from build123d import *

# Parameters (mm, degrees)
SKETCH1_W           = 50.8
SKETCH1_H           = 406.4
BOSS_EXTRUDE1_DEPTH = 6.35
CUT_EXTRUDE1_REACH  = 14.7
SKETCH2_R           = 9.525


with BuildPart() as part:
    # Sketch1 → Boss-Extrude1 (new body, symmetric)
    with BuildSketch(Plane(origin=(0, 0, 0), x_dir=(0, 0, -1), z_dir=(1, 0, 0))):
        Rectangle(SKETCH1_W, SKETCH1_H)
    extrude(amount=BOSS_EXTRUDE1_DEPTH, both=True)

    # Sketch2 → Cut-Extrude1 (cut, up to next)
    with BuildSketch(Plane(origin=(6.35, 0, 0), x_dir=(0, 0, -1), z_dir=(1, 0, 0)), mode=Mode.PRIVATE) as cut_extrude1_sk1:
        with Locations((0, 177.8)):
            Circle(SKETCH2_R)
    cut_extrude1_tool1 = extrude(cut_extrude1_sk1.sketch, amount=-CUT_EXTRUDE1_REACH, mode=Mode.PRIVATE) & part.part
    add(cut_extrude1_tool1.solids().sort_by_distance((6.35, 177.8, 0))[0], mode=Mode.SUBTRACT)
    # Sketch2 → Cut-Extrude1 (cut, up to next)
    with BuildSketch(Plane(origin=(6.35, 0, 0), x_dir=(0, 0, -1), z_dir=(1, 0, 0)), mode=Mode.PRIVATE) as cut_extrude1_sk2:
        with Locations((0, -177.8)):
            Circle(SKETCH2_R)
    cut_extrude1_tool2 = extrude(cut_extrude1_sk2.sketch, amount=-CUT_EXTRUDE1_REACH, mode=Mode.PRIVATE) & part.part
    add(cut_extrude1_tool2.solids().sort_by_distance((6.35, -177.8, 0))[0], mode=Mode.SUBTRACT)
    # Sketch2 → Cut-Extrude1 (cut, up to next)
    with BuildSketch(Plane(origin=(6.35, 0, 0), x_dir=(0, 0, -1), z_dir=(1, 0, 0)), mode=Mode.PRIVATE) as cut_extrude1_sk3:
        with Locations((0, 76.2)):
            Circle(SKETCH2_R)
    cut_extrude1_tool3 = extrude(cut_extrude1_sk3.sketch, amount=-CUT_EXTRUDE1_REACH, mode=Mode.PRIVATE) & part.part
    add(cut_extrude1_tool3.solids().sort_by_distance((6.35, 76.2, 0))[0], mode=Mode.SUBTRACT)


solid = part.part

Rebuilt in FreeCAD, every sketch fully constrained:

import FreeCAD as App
import Part
import Sketcher
Q = App.Units.Quantity

doc = App.newDocument("Part")
body = doc.addObject("PartDesign::Body", "Body")

# Sketch on YZ plane
sketch1 = doc.addObject("Sketcher::SketchObject", "Sketch")
body.addObject(sketch1)
sketch1.AttachmentSupport = (doc.YZ_Plane, [""])
sketch1.MapMode = "FlatFace"
sketch1.addGeometry([
    Part.LineSegment(App.Vector(203, 25, 0), App.Vector(-203, 25, 0)),
    Part.LineSegment(App.Vector(-203, 25, 0), App.Vector(-203, -25, 0)),
    Part.LineSegment(App.Vector(-203, -25, 0), App.Vector(203, -25, 0)),
    Part.LineSegment(App.Vector(203, -25, 0), App.Vector(203, 25, 0)),
], False)
sketch1.addConstraint([
    Sketcher.Constraint("Coincident", 0, 2, 1, 1),
    Sketcher.Constraint("Coincident", 1, 2, 2, 1),
    Sketcher.Constraint("Coincident", 2, 2, 3, 1),
    Sketcher.Constraint("Coincident", 3, 2, 0, 1),
    Sketcher.Constraint("Horizontal", 0),
    Sketcher.Constraint("Vertical", 1),
    Sketcher.Constraint("Horizontal", 2),
    Sketcher.Constraint("Vertical", 3),
    Sketcher.Constraint("Symmetric", 0, 2, 2, 2, -1, 1),
    Sketcher.Constraint("DistanceX", 0, 2, 0, 1, Q("16 in")),
    Sketcher.Constraint("DistanceY", 1, 2, 1, 1, Q("2 in")),
])
pad1 = doc.addObject("PartDesign::Pad", "Pad")
body.addObject(pad1)
pad1.Profile = sketch1
pad1.Length = Q("0.5 in")
pad1.Midplane = True

# Sketch on YZ plane
sketch2 = doc.addObject("Sketcher::SketchObject", "Sketch001")
body.addObject(sketch2)
sketch2.AttachmentSupport = (doc.YZ_Plane, [""])
sketch2.MapMode = "FlatFace"
sketch2.AttachmentOffset = App.Placement(App.Vector(0, 0, 0.25 * 25.4), App.Rotation())
sketch2.addGeometry(Part.Circle(App.Vector(178, 0, 0), App.Vector(0, 0, 1), 10), False)
sketch2.addConstraint([
    Sketcher.Constraint("PointOnObject", 0, 3, -1),
    Sketcher.Constraint("Diameter", 0, Q("0.75 in")),
    Sketcher.Constraint("DistanceX", -1, 1, 0, 3, Q("7 in")),
])
pocket1 = doc.addObject("PartDesign::Pocket", "Pocket")
body.addObject(pocket1)
pocket1.Profile = sketch2
pocket1.Type = "UpToFirst"

# Sketch on YZ plane
sketch3 = doc.addObject("Sketcher::SketchObject", "Sketch002")
body.addObject(sketch3)
sketch3.AttachmentSupport = (doc.YZ_Plane, [""])
sketch3.MapMode = "FlatFace"
sketch3.AttachmentOffset = App.Placement(App.Vector(0, 0, 0.25 * 25.4), App.Rotation())
sketch3.addGeometry(Part.Circle(App.Vector(-178, 0, 0), App.Vector(0, 0, 1), 10), False)
sketch3.addConstraint([
    Sketcher.Constraint("PointOnObject", 0, 3, -1),
    Sketcher.Constraint("Diameter", 0, Q("0.75 in")),
    Sketcher.Constraint("DistanceX", 0, 3, -1, 1, Q("7 in")),
])
pocket2 = doc.addObject("PartDesign::Pocket", "Pocket001")
body.addObject(pocket2)
pocket2.Profile = sketch3
pocket2.Type = "UpToFirst"

# Sketch on YZ plane
sketch4 = doc.addObject("Sketcher::SketchObject", "Sketch003")
body.addObject(sketch4)
sketch4.AttachmentSupport = (doc.YZ_Plane, [""])
sketch4.MapMode = "FlatFace"
sketch4.AttachmentOffset = App.Placement(App.Vector(0, 0, 0.25 * 25.4), App.Rotation())
sketch4.addGeometry(Part.Circle(App.Vector(76, 0, 0), App.Vector(0, 0, 1), 10), False)
sketch4.addConstraint([
    Sketcher.Constraint("PointOnObject", 0, 3, -1),
    Sketcher.Constraint("Diameter", 0, Q("0.75 in")),
    Sketcher.Constraint("DistanceX", -1, 1, 0, 3, Q("3 in")),
])
pocket3 = doc.addObject("PartDesign::Pocket", "Pocket002")
body.addObject(pocket3)
pocket3.Profile = sketch4
pocket3.Type = "UpToFirst"

doc.recompute()
